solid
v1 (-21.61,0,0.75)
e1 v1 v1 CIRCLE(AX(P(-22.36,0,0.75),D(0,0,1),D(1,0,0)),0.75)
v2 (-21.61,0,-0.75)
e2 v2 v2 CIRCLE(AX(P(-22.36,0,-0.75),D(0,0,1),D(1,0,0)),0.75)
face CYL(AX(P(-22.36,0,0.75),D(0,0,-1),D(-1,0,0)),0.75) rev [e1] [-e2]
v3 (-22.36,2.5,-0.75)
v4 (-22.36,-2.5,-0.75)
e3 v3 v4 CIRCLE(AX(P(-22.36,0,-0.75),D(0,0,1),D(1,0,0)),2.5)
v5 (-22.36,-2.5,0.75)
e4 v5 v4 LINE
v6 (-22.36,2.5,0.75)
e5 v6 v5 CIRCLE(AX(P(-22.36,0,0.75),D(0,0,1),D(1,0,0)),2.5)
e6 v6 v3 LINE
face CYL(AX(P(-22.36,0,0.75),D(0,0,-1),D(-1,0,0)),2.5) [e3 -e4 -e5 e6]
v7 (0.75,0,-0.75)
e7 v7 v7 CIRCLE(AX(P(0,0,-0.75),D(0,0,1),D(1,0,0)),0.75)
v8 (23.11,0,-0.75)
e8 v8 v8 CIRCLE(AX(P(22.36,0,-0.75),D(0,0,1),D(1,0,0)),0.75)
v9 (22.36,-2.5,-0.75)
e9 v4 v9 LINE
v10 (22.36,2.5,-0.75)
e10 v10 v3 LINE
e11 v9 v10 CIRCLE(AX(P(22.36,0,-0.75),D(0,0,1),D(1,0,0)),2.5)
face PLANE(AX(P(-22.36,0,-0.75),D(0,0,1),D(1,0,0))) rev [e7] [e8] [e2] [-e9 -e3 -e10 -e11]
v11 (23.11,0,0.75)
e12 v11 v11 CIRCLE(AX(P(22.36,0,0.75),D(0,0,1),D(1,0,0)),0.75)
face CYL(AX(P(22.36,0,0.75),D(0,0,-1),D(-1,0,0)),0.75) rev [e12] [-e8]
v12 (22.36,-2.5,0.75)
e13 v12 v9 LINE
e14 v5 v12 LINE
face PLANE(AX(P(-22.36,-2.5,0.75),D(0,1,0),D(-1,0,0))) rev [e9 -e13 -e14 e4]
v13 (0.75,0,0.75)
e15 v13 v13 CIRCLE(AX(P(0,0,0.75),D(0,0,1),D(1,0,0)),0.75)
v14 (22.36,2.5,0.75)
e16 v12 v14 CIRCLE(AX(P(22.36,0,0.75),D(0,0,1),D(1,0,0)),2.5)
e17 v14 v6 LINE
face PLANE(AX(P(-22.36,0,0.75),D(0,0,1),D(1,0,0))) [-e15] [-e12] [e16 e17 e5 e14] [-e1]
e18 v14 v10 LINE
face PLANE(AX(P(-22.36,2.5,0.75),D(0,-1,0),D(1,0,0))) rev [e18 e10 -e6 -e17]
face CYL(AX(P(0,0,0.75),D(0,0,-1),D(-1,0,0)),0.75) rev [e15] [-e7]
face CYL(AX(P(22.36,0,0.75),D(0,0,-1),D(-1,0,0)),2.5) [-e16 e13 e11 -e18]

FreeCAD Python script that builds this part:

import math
import FreeCAD as App
import Part
import Sketcher
from FreeCAD import Vector

doc = App.newDocument("Part")
params = doc.addObject("Spreadsheet::Sheet", "Params")
for row, (alias, value) in enumerate([
    ("sketch1_diameter", "1.5 mm"),
    ("sketch1_radius", "2.5 mm"),
    ("sketch1_width", "44.72 mm"),
    ("pad1_length", "1.5 mm"),
], start=1):
    params.set(f"A{row}", alias)
    params.set(f"B{row}", "=" + value)
    params.setAlias(f"B{row}", alias)

body = doc.addObject("PartDesign::Body", "Body")

sketch1 = body.newObject("Sketcher::SketchObject", "Sketch")
sketch1.AttachmentSupport = (doc.getObject("XY_Plane"), [""])
sketch1.MapMode = "FlatFace"
sketch1.addGeometry([
    Part.LineSegment(Vector(22.4, 2.5, 0), Vector(-22.4, 2.5, 0)),
    Part.ArcOfCircle(Part.Circle(Vector(-22.4, 0, 0), Vector(0, 0, 1), 2.5), math.radians(90), math.radians(270)),
    Part.LineSegment(Vector(-22.4, -2.5, 0), Vector(22.4, -2.5, 0)),
    Part.ArcOfCircle(Part.Circle(Vector(22.4, 0, 0), Vector(0, 0, 1), 2.5), math.radians(-90), math.radians(90)),
    Part.Circle(Vector(22.4, 0, 0), Vector(0, 0, 1), 0.8),
    Part.Circle(Vector(0, 0, 0), Vector(0, 0, 1), 0.8),
    Part.Circle(Vector(-22.4, 0, 0), Vector(0, 0, 1), 0.8),
], False)
sketch1.addConstraint([
    Sketcher.Constraint("Tangent", 0, 2, 1, 1),
    Sketcher.Constraint("Tangent", 1, 2, 2, 1),
    Sketcher.Constraint("Tangent", 2, 2, 3, 1),
    Sketcher.Constraint("Tangent", 3, 2, 0, 1),
    Sketcher.Constraint("Horizontal", 0),
    Sketcher.Constraint("Horizontal", 2),
    Sketcher.Constraint("Coincident", 5, 3, -1, 1),
    Sketcher.Constraint("Coincident", 4, 3, 3, 3),
    Sketcher.Constraint("Coincident", 6, 3, 1, 3),
    Sketcher.Constraint("Equal", 4, 5),
    Sketcher.Constraint("Equal", 5, 6),
    Sketcher.Constraint("Symmetric", 1, 3, 3, 3, -1, 1),
    Sketcher.Constraint("Diameter", 4, 1.5),
    Sketcher.Constraint("Radius", 1, 2.5),
    Sketcher.Constraint("DistanceX", 0, 2, 0, 1, 44.72),
])
sketch1.setExpression("Constraints[12]", "Params.sketch1_diameter")
sketch1.setExpression("Constraints[13]", "Params.sketch1_radius")
sketch1.setExpression("Constraints[14]", "Params.sketch1_width")
pad1 = body.newObject("PartDesign::Pad", "Pad")
pad1.Profile = sketch1
pad1.setExpression("Length", "Params.pad1_length")
pad1.Midplane = True

doc.recompute()
